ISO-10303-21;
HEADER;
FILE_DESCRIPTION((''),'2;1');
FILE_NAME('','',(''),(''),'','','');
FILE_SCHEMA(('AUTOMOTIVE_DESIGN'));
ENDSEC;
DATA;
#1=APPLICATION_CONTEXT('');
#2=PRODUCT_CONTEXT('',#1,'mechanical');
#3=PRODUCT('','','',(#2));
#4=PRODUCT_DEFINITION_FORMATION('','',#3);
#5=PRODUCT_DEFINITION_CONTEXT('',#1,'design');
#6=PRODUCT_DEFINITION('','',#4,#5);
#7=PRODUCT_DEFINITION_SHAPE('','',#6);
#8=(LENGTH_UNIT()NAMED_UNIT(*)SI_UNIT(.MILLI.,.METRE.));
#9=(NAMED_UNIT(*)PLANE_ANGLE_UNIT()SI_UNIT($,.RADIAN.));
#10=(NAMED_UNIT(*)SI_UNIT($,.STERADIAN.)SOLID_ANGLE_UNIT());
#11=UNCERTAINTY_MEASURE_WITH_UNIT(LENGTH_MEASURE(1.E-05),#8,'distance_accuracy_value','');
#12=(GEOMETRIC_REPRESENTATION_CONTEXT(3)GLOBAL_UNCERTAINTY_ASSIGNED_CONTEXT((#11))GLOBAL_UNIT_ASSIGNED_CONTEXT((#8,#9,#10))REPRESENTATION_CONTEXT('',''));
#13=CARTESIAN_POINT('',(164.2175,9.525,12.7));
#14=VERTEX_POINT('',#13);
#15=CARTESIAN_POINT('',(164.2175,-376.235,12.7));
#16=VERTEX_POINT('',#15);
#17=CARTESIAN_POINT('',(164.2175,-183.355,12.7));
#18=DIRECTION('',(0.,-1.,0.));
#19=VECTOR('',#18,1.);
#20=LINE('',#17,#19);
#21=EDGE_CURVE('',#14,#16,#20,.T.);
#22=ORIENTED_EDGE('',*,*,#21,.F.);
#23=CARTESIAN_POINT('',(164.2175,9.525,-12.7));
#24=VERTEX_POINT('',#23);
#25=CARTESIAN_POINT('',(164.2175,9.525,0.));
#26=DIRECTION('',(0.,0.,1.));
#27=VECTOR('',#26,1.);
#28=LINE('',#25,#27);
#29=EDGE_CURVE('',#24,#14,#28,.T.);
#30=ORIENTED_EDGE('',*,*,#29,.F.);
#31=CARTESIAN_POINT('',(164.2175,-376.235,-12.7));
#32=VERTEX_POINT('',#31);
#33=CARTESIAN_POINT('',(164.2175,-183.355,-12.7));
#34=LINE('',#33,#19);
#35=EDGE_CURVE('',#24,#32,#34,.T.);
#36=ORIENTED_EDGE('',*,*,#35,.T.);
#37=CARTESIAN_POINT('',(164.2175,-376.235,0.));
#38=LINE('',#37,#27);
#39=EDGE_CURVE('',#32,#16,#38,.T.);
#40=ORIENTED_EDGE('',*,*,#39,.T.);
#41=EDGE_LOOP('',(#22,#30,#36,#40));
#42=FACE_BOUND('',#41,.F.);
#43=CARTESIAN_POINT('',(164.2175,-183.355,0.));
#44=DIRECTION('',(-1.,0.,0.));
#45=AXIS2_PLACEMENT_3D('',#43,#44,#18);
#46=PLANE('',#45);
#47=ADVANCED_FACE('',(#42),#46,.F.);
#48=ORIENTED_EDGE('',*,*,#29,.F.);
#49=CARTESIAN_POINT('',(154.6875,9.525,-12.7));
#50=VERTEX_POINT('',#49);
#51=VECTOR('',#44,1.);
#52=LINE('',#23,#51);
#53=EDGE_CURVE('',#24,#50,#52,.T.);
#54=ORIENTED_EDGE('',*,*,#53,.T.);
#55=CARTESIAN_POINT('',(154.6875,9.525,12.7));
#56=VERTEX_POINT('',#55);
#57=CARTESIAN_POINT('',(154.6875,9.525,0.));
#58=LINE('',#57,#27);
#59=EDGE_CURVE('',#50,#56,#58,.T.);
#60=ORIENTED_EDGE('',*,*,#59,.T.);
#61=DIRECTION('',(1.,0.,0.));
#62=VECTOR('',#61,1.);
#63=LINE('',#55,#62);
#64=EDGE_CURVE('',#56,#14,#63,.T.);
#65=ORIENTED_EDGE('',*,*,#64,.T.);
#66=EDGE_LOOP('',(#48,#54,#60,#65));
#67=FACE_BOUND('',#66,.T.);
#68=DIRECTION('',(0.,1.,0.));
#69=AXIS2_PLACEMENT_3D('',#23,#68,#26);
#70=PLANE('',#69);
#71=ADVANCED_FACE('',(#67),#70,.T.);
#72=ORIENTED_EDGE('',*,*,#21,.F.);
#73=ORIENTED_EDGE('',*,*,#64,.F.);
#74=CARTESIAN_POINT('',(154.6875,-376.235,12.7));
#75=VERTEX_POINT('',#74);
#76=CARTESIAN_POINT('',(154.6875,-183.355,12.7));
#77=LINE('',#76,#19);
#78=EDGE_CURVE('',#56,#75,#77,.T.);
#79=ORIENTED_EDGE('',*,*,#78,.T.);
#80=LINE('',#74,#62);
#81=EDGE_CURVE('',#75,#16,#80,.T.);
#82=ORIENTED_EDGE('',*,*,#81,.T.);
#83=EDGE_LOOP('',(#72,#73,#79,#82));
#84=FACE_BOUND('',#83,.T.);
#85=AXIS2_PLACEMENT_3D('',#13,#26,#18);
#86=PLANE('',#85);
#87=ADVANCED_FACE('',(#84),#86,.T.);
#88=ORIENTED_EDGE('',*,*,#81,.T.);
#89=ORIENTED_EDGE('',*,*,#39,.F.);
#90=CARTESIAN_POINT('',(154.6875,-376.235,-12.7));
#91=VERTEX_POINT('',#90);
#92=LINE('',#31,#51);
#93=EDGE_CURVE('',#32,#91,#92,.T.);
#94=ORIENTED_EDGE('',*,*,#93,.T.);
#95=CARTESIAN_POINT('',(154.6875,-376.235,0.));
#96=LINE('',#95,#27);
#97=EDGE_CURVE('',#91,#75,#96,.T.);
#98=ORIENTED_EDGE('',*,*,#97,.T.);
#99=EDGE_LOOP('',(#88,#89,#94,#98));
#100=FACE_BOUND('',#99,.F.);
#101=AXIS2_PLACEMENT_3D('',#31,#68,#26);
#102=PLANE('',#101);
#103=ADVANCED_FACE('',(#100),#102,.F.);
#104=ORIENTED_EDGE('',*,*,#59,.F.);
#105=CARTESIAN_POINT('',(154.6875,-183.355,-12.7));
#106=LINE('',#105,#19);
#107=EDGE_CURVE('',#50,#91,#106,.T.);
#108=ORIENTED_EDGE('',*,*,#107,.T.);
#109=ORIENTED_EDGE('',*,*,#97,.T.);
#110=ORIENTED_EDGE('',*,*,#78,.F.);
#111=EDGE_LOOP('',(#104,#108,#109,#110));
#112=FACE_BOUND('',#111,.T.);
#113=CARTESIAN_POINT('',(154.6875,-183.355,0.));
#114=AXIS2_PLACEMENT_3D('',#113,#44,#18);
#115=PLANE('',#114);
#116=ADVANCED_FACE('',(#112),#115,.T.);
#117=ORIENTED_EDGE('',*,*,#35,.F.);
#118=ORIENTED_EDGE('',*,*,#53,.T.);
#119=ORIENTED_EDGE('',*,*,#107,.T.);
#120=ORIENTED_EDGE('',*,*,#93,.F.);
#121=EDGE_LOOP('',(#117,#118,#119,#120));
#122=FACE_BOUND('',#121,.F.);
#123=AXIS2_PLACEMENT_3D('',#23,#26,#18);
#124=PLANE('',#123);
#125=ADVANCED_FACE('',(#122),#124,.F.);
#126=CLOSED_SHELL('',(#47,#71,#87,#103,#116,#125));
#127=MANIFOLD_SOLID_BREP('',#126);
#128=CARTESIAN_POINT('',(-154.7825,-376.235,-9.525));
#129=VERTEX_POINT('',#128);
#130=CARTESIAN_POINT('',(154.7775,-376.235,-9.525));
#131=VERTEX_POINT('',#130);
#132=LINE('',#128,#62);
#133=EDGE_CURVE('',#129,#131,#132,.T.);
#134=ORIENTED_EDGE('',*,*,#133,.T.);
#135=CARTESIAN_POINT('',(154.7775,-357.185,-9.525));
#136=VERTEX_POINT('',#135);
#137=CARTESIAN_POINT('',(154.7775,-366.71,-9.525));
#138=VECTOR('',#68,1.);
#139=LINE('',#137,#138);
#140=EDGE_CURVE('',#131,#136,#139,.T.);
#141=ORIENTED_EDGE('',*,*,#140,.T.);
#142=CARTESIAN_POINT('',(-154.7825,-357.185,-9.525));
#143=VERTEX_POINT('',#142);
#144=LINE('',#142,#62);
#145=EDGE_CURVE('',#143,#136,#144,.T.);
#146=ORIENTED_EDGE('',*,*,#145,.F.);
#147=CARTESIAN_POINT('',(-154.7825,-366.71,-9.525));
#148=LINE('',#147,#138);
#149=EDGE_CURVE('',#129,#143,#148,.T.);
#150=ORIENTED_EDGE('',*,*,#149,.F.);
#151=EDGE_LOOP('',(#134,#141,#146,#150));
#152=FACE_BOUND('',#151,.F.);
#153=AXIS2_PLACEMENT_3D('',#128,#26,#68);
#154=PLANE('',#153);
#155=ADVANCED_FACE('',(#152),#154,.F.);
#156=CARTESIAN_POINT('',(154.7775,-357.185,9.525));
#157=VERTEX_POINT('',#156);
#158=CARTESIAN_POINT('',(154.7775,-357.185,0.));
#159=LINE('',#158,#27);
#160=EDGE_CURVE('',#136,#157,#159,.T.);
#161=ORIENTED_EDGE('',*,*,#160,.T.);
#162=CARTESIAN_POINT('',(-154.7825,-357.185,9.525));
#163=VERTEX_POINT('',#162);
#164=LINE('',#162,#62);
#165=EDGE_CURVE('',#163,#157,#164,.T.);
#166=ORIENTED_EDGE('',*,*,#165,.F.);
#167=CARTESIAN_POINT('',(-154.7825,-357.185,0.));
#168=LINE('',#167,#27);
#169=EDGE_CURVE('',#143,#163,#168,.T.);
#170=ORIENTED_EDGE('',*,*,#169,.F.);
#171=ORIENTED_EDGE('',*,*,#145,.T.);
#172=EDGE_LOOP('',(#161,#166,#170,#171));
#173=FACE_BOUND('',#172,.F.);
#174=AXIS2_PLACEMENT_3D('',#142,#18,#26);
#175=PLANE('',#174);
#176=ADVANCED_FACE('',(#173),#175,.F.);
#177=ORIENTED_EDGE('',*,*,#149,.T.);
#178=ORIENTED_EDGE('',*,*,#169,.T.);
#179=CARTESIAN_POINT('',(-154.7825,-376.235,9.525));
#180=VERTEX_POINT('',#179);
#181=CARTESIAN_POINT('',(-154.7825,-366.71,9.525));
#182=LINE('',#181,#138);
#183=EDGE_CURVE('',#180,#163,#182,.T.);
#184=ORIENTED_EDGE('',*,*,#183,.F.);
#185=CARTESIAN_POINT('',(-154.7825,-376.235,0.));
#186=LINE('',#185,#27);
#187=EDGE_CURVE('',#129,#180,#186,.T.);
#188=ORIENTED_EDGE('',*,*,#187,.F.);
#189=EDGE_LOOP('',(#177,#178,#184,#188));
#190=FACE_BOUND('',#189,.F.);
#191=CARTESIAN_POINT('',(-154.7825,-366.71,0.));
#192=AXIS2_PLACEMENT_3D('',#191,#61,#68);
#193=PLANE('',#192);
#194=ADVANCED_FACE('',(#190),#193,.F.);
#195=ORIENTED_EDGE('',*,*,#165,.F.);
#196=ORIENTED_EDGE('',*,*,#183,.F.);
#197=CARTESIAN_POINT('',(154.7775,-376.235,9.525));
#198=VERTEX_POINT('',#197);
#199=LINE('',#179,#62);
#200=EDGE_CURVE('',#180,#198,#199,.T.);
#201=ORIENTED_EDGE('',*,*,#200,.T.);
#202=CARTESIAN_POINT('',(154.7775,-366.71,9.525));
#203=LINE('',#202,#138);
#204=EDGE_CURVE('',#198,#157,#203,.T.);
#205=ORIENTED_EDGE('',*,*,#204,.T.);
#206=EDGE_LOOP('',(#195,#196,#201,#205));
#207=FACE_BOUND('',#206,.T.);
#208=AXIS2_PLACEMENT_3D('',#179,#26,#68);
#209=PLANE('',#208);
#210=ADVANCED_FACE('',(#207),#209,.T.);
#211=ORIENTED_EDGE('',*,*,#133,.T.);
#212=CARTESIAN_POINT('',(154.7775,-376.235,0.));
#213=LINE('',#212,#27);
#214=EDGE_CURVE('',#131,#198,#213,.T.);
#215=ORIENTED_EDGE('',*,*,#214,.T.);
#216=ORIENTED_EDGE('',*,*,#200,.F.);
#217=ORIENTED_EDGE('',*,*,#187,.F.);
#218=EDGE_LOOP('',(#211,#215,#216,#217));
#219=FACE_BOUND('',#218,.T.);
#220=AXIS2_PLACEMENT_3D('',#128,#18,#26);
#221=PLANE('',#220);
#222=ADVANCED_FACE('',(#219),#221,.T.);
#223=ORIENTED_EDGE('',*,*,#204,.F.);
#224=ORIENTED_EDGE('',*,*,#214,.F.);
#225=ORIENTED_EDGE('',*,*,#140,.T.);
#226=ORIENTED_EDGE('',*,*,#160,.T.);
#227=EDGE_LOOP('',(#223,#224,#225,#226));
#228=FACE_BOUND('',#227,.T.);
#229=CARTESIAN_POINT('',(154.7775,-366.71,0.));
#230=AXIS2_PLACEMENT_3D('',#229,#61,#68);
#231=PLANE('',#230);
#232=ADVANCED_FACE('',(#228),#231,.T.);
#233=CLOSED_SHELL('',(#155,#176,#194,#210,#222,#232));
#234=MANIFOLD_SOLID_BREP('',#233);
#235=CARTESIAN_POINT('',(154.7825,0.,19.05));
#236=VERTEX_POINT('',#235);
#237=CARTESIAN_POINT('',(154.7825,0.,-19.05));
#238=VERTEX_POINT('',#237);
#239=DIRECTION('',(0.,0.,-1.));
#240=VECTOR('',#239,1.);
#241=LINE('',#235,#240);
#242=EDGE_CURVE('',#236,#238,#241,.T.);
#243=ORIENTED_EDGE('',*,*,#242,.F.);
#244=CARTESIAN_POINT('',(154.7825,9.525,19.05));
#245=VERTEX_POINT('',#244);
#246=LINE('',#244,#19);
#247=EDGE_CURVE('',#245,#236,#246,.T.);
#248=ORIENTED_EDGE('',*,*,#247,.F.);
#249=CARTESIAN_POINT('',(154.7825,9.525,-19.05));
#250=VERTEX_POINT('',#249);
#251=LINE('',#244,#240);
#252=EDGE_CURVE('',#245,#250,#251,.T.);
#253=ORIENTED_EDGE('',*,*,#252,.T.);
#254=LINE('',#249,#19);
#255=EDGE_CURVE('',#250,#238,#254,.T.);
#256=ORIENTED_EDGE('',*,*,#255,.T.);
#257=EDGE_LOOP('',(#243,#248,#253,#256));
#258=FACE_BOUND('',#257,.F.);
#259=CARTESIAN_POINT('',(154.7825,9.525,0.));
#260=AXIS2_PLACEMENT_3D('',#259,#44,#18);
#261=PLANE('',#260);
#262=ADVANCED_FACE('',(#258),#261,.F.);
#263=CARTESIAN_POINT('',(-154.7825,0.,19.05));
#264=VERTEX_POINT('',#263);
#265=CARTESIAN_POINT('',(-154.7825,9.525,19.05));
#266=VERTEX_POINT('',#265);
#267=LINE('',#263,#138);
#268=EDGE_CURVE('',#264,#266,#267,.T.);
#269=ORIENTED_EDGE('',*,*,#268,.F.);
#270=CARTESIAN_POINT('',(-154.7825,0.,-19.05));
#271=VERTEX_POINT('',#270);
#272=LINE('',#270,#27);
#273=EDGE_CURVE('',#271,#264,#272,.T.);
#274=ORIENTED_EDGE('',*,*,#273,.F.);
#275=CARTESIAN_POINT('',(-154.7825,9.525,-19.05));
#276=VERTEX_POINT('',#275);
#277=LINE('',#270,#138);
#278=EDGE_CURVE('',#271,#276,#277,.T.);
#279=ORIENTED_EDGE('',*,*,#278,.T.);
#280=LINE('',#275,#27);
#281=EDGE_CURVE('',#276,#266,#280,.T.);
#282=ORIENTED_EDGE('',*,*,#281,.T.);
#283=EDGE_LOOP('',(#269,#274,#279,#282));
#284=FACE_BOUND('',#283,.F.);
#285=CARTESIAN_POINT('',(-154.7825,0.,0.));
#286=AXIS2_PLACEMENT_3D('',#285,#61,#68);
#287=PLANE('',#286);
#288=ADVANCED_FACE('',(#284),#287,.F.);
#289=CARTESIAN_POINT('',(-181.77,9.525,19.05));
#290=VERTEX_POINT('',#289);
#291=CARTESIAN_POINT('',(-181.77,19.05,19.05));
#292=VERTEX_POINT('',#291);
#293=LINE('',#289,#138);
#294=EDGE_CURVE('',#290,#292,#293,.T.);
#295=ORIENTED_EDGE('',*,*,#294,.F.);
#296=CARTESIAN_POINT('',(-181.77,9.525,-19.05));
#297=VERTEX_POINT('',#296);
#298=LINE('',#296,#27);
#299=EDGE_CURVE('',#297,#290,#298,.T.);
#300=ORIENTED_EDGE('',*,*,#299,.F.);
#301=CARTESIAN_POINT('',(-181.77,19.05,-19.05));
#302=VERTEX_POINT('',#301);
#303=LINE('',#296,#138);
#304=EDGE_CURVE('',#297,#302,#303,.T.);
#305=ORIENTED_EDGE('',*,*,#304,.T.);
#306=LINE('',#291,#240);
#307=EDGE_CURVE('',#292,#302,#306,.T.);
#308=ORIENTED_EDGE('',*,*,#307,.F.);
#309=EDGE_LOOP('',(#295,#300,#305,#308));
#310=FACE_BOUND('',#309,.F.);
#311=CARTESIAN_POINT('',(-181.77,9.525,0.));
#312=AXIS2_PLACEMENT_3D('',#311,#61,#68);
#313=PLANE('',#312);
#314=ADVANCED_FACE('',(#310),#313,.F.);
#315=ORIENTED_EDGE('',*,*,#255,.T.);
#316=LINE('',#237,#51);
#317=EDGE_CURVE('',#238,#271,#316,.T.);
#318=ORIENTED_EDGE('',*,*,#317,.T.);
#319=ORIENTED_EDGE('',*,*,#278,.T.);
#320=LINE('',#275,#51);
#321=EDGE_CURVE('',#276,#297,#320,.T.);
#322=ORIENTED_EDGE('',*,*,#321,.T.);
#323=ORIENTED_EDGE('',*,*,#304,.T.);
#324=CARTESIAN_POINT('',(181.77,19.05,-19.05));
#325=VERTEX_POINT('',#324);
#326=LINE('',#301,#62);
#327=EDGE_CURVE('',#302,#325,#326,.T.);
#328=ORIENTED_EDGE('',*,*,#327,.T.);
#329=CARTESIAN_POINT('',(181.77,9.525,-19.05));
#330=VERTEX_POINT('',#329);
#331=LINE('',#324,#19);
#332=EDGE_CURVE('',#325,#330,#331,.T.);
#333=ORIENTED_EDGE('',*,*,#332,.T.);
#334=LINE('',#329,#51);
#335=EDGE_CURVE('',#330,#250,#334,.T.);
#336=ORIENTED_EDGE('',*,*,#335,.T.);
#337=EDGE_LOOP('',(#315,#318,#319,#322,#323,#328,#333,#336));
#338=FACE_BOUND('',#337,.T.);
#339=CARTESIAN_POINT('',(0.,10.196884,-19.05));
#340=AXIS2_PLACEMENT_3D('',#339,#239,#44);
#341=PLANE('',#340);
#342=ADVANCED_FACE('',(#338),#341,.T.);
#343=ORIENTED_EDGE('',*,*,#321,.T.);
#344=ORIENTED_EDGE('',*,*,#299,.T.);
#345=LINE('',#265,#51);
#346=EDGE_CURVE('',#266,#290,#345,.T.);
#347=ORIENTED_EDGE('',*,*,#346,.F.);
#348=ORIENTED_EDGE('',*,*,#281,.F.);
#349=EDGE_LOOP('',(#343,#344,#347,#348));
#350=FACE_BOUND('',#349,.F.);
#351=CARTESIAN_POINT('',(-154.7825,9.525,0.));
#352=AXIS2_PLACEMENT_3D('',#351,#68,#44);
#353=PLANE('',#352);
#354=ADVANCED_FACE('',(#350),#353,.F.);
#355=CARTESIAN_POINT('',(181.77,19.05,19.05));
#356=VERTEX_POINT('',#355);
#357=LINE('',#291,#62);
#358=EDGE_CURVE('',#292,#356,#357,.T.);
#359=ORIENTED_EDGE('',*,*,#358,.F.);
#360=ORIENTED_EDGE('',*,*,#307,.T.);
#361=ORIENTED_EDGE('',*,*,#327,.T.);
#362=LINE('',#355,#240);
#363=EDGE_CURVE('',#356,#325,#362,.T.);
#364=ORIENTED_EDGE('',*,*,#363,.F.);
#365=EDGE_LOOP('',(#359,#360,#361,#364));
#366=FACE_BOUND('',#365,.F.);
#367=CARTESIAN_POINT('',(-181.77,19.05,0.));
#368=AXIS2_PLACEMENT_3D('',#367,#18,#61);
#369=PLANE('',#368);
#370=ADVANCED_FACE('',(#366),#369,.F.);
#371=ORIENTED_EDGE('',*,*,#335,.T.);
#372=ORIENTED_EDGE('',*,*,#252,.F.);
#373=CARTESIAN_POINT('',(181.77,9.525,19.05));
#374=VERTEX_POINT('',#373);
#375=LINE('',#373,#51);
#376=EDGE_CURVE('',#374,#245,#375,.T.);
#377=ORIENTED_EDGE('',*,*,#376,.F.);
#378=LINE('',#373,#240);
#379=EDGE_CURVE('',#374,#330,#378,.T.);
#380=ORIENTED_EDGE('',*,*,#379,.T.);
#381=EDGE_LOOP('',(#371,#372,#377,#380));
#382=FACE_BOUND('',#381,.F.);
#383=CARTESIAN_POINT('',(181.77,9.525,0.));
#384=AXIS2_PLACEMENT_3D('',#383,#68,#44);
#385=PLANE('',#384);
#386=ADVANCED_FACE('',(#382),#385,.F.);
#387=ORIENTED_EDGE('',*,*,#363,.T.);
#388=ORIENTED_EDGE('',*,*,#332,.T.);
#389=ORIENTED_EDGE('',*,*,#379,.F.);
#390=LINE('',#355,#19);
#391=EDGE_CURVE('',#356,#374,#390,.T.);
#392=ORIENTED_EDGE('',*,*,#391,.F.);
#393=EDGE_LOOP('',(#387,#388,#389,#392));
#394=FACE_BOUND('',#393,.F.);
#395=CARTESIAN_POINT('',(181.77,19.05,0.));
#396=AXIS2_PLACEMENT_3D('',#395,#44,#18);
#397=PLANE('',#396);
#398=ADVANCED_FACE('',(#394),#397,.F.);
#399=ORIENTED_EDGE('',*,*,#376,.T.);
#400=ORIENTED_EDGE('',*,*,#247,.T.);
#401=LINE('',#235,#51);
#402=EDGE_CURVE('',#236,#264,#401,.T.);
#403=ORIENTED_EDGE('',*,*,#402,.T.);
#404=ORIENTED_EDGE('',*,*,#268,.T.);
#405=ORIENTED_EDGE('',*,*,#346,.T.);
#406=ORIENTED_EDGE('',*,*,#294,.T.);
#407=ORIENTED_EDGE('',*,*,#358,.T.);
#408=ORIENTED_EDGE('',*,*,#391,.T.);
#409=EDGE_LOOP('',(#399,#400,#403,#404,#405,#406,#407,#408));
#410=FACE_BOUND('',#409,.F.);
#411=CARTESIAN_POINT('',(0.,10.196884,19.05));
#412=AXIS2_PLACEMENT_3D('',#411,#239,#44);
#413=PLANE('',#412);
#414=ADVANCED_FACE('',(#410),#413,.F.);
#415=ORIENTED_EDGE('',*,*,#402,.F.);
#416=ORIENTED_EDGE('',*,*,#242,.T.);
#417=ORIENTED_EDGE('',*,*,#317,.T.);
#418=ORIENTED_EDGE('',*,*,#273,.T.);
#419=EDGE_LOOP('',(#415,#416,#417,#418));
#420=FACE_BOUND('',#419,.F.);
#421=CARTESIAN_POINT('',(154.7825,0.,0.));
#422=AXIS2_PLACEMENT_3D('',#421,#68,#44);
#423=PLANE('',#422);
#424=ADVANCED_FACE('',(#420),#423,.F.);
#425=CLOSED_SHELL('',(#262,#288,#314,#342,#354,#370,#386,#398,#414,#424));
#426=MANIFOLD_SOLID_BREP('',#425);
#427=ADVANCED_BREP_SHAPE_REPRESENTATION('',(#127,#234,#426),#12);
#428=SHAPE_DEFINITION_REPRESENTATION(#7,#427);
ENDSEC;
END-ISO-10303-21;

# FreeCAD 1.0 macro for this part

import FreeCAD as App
import Part
import Sketcher
from FreeCAD import Vector
Q = App.Units.Quantity


def add_polygon(sketch, points):
    """Adds a closed chain of lines whose ends are joined by coincident constraints."""
    first, n = sketch.GeometryCount, len(points)
    for a, b in zip(points, points[1:] + points[:1]):
        sketch.addGeometry(Part.LineSegment(App.Vector(*a, 0), App.Vector(*b, 0)), False)
    for i in range(n):
        sketch.addConstraint(Sketcher.Constraint("Coincident", first + i, 2, first + (i + 1) % n, 1))

doc = App.newDocument("Part")
params = doc.addObject("Spreadsheet::Sheet", "Params")
for row, (alias, value) in enumerate([
    ("sketch1_width", "1.0625 in"),
    ("sketch1_height", "0.375 in"),
    ("pad1_length", "1.5 in"),
    ("sketch2_width", "0.75 in"),
    ("pad2_length", "309.56 mm"),
    ("sketch3_height", "1 in"),
    ("pad3_length", "0.375 in"),
    ("sketch4_height", "1 in"),
    ("pad4_length", "9.53 mm"),
], start=1):
    params.set(f"A{row}", alias)
    params.set(f"B{row}", "=" + value)
    params.setAlias(f"B{row}", alias)

body = doc.addObject("PartDesign::Body", "Body")

sketch1 = doc.addObject("Sketcher::SketchObject", "Sketch")
body.addObject(sketch1)
sketch1.AttachmentSupport = (doc.XY_Plane, [""])
sketch1.MapMode = "FlatFace"
add_polygon(sketch1, [(-182, 19), (-182, 10), (-155, 10), (-155, 0), (155, 0), (155, 10), (182, 10), (182, 19)])
sketch1.addConstraint([
    Sketcher.Constraint("Vertical", 0),
    Sketcher.Constraint("Horizontal", 1),
    Sketcher.Constraint("Vertical", 2),
    Sketcher.Constraint("Horizontal", 3),
    Sketcher.Constraint("Vertical", 4),
    Sketcher.Constraint("Horizontal", 5),
    Sketcher.Constraint("Vertical", 6),
    Sketcher.Constraint("Horizontal", 7),
    Sketcher.Constraint("Symmetric", 2, 2, 3, 2, -1, 1),
    Sketcher.Constraint("Symmetric", 0, 2, 5, 2, -2),
    Sketcher.Constraint("Equal", 0, 2),
    Sketcher.Constraint("DistanceX", 1, 1, 1, 2, Q("1.0625 in")),
    Sketcher.Constraint("DistanceY", 0, 2, 0, 1, Q("0.375 in")),
    Sketcher.Constraint("DistanceX", 3, 1, 3, 2, Q("309.565 mm")),
])
sketch1.setExpression("Constraints[19]", "Params.sketch1_width")
sketch1.setExpression("Constraints[20]", "Params.sketch1_height")
pad1 = doc.addObject("PartDesign::Pad", "Pad")
body.addObject(pad1)
pad1.Profile = sketch1
pad1.setExpression("Length", "Params.pad1_length")
pad1.Midplane = True
body2 = doc.addObject("PartDesign::Body", "Body001")

sketch2 = doc.addObject("Sketcher::SketchObject", "Sketch001")
body2.addObject(sketch2)
sketch2.AttachmentSupport = (doc.getObject("YZ_Plane001"), [""])
sketch2.MapMode = "FlatFace"
sketch2.AttachmentOffset = App.Placement(Vector(0, 0, -154.7825), App.Rotation())
add_polygon(sketch2, [(-376, 10), (-376, -10), (-357, -10), (-357, 10)])
sketch2.addConstraint([
    Sketcher.Constraint("Vertical", 0),
    Sketcher.Constraint("Horizontal", 1),
    Sketcher.Constraint("Vertical", 2),
    Sketcher.Constraint("Horizontal", 3),
    Sketcher.Constraint("Equal", 3, 0),
    Sketcher.Constraint("DistanceX", 1, 1, 1, 2, Q("0.75 in")),
    Sketcher.Constraint("DistanceY", 0, 2, -1, 1, Q("0.375 in")),
    Sketcher.Constraint("DistanceX", 0, 2, -1, 1, Q("376.235 mm")),
])
sketch2.setExpression("Constraints[9]", "Params.sketch2_width")
pad2 = doc.addObject("PartDesign::Pad", "Pad001")
body2.addObject(pad2)
pad2.Profile = sketch2
pad2.setExpression("Length", "Params.pad2_length")
body3 = doc.addObject("PartDesign::Body", "Body002")

sketch3 = doc.addObject("Sketcher::SketchObject", "Sketch002")
body3.addObject(sketch3)
sketch3.AttachmentSupport = (doc.getObject("YZ_Plane002"), [""])
sketch3.MapMode = "FlatFace"
sketch3.AttachmentOffset = App.Placement(Vector(0, 0, -154.7825), App.Rotation())
add_polygon(sketch3, [(10, 13), (10, -13), (-376, -13), (-376, 13)])
sketch3.addConstraint([
    Sketcher.Constraint("Vertical", 0),
    Sketcher.Constraint("Horizontal", 1),
    Sketcher.Constraint("Vertical", 2),
    Sketcher.Constraint("Horizontal", 3),
    Sketcher.Constraint("DistanceY", 0, 2, 0, 1, Q("1 in")),
    Sketcher.Constraint("DistanceY", 0, 2, -1, 1, Q("0.5 in")),
    Sketcher.Constraint("DistanceX", -1, 1, 0, 2, Q("0.375 in")),
    Sketcher.Constraint("DistanceX", 1, 2, 1, 1, Q("385.76 mm")),
])
sketch3.setExpression("Constraints[8]", "Params.sketch3_height")
pad3 = doc.addObject("PartDesign::Pad", "Pad002")
body3.addObject(pad3)
pad3.Profile = sketch3
pad3.setExpression("Length", "Params.pad3_length")
pad3.Reversed = True

sketch4 = doc.addObject("Sketcher::SketchObject", "Sketch003")
body3.addObject(sketch4)
sketch4.AttachmentSupport = (doc.getObject("YZ_Plane002"), [""])
sketch4.MapMode = "FlatFace"
sketch4.AttachmentOffset = App.Placement(Vector(0, 0, -154.7825), App.Rotation())
add_polygon(sketch4, [(10, 13), (10, -13), (-376, -13), (-376, 13)])
sketch4.addConstraint([
    Sketcher.Constraint("Vertical", 0),
    Sketcher.Constraint("Horizontal", 1),
    Sketcher.Constraint("Vertical", 2),
    Sketcher.Constraint("Horizontal", 3),
    Sketcher.Constraint("DistanceY", 0, 2, 0, 1, Q("1 in")),
    Sketcher.Constraint("DistanceY", 0, 2, -1, 1, Q("0.5 in")),
    Sketcher.Constraint("DistanceX", -1, 1, 0, 2, Q("0.375 in")),
    Sketcher.Constraint("DistanceX", 1, 2, 1, 1, Q("385.76 mm")),
])
sketch4.setExpression("Constraints[8]", "Params.sketch4_height")
pad4 = doc.addObject("PartDesign::Pad", "Pad003")
body3.addObject(pad4)
pad4.Profile = sketch4
pad4.setExpression("Length", "Params.pad4_length")
pad4.Reversed = True
body4 = doc.addObject("PartDesign::Body", "Body003")
doc.recompute()

body3.Placement = App.Placement(Vector(319, 0, 0), App.Rotation(Vector(0, 0, 1), 0))
boolean = doc.addObject("PartDesign::Boolean", "Boolean")
body4.addObject(boolean)
boolean.Type = "Fuse"
boolean.addObjects([body3])

doc.recompute()
